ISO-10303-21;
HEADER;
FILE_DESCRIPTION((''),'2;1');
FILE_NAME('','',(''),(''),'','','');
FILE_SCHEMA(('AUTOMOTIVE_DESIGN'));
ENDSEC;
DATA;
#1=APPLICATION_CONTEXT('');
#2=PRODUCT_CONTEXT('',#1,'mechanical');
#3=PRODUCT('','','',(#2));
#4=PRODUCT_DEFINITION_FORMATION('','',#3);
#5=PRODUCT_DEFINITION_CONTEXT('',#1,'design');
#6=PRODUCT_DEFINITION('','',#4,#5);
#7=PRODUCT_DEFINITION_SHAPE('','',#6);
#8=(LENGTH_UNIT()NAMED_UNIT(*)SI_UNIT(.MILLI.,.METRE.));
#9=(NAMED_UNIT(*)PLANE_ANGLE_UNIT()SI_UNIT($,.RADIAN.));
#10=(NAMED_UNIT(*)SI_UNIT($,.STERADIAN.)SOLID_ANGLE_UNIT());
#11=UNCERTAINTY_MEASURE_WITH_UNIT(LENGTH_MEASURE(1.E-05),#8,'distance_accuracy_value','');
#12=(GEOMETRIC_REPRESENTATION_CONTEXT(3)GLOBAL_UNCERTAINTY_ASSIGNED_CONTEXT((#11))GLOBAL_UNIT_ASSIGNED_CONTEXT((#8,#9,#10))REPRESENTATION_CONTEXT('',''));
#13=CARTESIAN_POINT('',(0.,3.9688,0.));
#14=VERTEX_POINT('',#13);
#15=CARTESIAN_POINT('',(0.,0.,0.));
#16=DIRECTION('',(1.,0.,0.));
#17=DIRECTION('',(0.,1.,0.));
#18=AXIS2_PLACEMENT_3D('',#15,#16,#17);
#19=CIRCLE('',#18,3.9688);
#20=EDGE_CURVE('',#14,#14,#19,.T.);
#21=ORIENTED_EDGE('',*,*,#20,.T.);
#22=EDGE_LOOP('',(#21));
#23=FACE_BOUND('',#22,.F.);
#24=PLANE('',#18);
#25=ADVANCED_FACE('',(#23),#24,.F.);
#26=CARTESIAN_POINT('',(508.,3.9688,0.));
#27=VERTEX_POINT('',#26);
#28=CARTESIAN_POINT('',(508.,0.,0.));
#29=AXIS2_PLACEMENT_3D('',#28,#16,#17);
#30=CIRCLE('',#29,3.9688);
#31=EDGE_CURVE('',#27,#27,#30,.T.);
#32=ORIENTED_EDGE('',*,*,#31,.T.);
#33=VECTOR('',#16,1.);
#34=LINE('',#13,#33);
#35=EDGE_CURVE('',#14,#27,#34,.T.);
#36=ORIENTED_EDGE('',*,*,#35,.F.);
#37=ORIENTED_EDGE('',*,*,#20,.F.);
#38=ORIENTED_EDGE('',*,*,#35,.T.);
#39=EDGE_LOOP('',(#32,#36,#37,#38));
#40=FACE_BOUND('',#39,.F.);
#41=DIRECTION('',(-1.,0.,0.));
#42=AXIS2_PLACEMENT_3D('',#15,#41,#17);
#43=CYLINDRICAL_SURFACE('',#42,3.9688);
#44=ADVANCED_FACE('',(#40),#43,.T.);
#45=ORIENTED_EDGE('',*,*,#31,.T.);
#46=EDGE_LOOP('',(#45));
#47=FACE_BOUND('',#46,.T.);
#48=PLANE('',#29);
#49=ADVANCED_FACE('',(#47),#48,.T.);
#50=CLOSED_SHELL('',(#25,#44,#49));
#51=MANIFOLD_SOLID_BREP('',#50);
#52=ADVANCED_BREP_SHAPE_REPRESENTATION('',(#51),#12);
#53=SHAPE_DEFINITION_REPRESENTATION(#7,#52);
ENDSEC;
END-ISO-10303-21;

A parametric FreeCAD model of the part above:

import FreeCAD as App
import Part
import Sketcher

V = App.Vector
Q = App.Units.Quantity

doc = App.newDocument("Part")
body = doc.addObject("PartDesign::Body", "Body")

# Sketch on YZ plane
sketch1 = body.newObject("Sketcher::SketchObject", "Sketch")
sketch1.AttachmentSupport = (doc.getObject("YZ_Plane"), [""])
sketch1.MapMode = "FlatFace"
sketch1.addGeometry(Part.Circle(V(0, 0, 0), V(0, 0, 1), 4), False)
sketch1.addConstraint(Sketcher.Constraint("Coincident", 0, 3, -1, 1))
sketch1.addConstraint(Sketcher.Constraint("Diameter", 0, Q("0.3125 in")))
pad1 = body.newObject("PartDesign::Pad", "Pad")
pad1.Profile = sketch1
pad1.Length = Q("20 in")

doc.recompute()
